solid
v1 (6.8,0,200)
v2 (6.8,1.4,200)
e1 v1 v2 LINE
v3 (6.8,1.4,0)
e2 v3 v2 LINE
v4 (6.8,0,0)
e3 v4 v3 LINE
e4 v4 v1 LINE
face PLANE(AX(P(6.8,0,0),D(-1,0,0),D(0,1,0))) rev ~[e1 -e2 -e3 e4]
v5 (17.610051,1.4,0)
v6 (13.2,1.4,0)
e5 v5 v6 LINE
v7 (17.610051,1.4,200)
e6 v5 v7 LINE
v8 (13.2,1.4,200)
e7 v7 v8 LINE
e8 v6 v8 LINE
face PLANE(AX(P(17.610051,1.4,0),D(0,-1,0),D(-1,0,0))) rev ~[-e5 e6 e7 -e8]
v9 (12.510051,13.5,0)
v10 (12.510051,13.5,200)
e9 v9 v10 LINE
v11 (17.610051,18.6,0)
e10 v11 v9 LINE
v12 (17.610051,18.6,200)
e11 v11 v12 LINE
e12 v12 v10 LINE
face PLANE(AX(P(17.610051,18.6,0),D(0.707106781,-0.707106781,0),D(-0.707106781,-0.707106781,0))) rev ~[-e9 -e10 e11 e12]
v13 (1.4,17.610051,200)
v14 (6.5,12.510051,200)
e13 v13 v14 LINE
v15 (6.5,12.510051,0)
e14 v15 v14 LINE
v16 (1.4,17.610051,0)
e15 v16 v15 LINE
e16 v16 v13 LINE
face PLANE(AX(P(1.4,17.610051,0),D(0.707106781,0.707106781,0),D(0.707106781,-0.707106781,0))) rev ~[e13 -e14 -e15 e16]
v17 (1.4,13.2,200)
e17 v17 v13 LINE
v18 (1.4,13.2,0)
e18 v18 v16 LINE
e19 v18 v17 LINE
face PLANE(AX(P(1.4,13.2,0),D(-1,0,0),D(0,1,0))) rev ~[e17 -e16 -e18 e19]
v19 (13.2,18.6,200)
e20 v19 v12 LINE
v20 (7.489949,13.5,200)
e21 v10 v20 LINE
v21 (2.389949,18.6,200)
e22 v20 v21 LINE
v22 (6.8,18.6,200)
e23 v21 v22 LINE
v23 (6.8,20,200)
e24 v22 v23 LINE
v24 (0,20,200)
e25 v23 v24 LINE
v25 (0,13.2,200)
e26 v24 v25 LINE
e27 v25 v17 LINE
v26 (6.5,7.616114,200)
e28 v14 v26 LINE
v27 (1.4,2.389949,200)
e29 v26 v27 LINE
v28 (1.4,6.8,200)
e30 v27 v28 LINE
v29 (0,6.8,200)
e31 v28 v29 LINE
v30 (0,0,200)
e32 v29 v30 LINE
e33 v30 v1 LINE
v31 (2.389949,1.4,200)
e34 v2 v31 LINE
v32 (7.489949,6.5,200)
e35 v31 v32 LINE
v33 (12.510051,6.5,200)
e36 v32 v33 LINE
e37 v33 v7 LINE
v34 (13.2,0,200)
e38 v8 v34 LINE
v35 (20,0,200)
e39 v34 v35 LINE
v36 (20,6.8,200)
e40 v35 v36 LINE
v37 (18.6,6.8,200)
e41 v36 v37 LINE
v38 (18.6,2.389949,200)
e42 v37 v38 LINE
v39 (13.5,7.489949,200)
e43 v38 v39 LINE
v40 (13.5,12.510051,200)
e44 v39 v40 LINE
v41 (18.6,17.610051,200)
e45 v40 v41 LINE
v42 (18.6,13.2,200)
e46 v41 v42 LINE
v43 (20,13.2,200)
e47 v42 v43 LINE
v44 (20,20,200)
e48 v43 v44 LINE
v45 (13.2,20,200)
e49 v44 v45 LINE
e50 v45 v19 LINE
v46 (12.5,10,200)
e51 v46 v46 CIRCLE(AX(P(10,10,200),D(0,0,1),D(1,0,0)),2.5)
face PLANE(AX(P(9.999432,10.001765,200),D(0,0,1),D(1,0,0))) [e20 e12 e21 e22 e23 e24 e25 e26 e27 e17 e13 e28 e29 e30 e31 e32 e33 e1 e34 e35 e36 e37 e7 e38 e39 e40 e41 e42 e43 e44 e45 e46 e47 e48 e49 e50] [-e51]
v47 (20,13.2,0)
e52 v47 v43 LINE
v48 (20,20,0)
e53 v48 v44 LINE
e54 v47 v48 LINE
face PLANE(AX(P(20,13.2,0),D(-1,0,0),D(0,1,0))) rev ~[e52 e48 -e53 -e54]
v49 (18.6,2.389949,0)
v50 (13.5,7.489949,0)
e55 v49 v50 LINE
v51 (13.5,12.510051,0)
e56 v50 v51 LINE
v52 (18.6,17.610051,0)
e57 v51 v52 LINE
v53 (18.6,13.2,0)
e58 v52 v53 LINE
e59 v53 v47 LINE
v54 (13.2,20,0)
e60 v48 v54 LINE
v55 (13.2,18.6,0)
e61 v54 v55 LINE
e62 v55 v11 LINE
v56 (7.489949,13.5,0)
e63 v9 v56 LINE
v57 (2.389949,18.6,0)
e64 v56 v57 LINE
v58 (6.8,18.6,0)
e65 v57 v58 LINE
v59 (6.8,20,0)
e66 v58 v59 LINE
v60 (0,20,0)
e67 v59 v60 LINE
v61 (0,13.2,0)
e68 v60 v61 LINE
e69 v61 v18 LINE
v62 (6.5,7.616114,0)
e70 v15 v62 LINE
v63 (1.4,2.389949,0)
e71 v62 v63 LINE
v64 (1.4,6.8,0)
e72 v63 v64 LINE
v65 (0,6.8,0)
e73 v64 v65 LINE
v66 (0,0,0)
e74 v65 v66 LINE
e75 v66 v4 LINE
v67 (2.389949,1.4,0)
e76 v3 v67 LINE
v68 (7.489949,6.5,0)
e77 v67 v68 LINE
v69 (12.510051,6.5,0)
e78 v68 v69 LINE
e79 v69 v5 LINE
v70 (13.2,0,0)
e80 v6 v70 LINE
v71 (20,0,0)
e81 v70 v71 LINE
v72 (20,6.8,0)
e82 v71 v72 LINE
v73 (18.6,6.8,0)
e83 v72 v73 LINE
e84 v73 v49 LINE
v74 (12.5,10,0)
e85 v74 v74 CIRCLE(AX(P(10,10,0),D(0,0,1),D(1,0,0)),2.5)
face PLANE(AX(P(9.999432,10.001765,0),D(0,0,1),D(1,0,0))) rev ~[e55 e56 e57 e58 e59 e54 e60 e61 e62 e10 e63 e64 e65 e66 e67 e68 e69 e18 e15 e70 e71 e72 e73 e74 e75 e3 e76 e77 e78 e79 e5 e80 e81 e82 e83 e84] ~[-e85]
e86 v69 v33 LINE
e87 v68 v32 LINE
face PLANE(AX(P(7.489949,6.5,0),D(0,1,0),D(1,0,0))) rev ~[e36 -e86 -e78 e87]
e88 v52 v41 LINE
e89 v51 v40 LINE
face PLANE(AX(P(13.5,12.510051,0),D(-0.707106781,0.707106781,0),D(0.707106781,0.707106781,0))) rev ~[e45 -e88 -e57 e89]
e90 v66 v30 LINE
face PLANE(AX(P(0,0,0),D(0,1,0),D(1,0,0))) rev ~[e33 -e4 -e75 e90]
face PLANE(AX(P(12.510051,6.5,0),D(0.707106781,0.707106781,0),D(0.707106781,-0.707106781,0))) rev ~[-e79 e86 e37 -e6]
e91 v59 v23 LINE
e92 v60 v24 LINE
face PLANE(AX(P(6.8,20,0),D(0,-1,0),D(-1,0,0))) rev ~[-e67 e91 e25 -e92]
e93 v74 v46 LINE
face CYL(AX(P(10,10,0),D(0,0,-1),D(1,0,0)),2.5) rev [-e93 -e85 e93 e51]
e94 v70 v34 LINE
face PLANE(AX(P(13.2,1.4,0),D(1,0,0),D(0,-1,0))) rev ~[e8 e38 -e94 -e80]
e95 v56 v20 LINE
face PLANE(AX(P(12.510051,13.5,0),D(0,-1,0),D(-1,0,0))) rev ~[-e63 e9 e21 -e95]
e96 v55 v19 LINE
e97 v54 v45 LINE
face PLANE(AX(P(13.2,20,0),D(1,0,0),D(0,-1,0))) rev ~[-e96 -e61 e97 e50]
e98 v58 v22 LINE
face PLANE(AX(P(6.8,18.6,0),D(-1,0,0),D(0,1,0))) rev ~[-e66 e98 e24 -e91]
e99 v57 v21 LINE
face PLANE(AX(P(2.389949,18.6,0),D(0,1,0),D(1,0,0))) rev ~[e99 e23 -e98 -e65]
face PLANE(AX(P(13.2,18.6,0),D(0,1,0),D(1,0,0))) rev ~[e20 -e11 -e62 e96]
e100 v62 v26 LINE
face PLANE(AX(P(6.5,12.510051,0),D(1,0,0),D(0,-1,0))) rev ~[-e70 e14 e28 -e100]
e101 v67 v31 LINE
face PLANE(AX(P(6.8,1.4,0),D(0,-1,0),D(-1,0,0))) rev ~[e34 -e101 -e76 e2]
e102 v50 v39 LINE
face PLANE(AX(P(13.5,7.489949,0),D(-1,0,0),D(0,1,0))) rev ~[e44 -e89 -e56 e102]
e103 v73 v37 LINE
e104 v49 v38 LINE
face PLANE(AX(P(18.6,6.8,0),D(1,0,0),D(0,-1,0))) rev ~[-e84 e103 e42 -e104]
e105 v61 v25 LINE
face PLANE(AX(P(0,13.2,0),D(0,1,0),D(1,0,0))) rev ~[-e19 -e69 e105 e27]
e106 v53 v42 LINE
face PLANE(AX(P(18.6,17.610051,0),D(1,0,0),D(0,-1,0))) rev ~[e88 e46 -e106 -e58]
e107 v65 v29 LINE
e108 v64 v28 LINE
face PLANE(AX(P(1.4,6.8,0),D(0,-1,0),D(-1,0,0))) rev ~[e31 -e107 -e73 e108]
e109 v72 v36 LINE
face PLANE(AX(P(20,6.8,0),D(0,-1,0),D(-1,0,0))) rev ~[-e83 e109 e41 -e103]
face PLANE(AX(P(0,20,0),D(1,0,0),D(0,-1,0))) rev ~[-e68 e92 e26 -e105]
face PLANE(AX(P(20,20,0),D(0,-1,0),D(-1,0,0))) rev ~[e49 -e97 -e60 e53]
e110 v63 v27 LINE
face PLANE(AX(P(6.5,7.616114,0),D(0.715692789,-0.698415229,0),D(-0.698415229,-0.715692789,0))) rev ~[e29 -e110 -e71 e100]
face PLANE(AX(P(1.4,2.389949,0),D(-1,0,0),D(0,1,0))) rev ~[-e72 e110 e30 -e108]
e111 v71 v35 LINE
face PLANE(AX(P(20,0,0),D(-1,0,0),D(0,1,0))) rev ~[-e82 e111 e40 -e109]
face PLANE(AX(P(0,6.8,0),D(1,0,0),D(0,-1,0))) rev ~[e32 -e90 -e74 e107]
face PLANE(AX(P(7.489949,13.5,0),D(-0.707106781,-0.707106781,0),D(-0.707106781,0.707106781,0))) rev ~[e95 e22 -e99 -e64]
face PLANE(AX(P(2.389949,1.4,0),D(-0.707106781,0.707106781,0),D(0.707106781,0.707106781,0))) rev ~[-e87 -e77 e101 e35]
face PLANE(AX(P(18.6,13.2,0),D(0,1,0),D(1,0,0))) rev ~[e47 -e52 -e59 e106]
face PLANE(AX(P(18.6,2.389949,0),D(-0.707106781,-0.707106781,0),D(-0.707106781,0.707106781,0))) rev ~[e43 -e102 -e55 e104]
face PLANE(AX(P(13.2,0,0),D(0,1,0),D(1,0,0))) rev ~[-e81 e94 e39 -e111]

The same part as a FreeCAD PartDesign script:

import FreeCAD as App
import Part
import Sketcher
from FreeCAD import Vector
Q = App.Units.Quantity

doc = App.newDocument("Part")
params = doc.addObject("Spreadsheet::Sheet", "Params")
for row, (alias, value) in enumerate([
    ("sketch1_diameter", "5 mm"),
    ("sketch1_width", "1.4 mm"),
    ("sketch1_width2", "6.8 mm"),
    ("pad1_length", "200 mm"),
], start=1):
    params.set(f"A{row}", alias)
    params.set(f"B{row}", "=" + value)
    params.setAlias(f"B{row}", alias)

body = doc.addObject("PartDesign::Body", "Body")

# Sketch on XY plane
sketch1 = doc.addObject("Sketcher::SketchObject", "Sketch")
body.addObject(sketch1)
sketch1.AttachmentSupport = (doc.XY_Plane, [""])
sketch1.MapMode = "FlatFace"
sketch1.addGeometry([
    Part.LineSegment(Vector(6.5, 7.6, 0), Vector(1.4, 2.4, 0)),  # 0
    Part.LineSegment(Vector(1.4, 2.4, 0), Vector(1.4, 6.8, 0)),  # 1
    Part.LineSegment(Vector(1.4, 6.8, 0), Vector(0, 6.8, 0)),  # 2
    Part.LineSegment(Vector(0, 6.8, 0), Vector(0, 0, 0)),  # 3
    Part.LineSegment(Vector(0, 0, 0), Vector(6.8, 0, 0)),  # 4
    Part.LineSegment(Vector(6.8, 0, 0), Vector(6.8, 1.4, 0)),  # 5
    Part.LineSegment(Vector(6.8, 1.4, 0), Vector(2.4, 1.4, 0)),  # 6
    Part.LineSegment(Vector(2.4, 1.4, 0), Vector(7.5, 6.5, 0)),  # 7
    Part.LineSegment(Vector(7.5, 6.5, 0), Vector(12.5, 6.5, 0)),  # 8
    Part.LineSegment(Vector(12.5, 6.5, 0), Vector(17.6, 1.4, 0)),  # 9
    Part.LineSegment(Vector(17.6, 1.4, 0), Vector(13.2, 1.4, 0)),  # 10
    Part.LineSegment(Vector(13.2, 1.4, 0), Vector(13.2, 0, 0)),  # 11
    Part.LineSegment(Vector(13.2, 0, 0), Vector(20, 0, 0)),  # 12
    Part.LineSegment(Vector(20, 0, 0), Vector(20, 6.8, 0)),  # 13
    Part.LineSegment(Vector(20, 6.8, 0), Vector(18.6, 6.8, 0)),  # 14
    Part.LineSegment(Vector(18.6, 6.8, 0), Vector(18.6, 2.4, 0)),  # 15
    Part.LineSegment(Vector(18.6, 2.4, 0), Vector(13.5, 7.5, 0)),  # 16
    Part.LineSegment(Vector(13.5, 7.5, 0), Vector(13.5, 12.5, 0)),  # 17
    Part.LineSegment(Vector(13.5, 12.5, 0), Vector(18.6, 17.6, 0)),  # 18
    Part.LineSegment(Vector(18.6, 17.6, 0), Vector(18.6, 13.2, 0)),  # 19
    Part.LineSegment(Vector(18.6, 13.2, 0), Vector(20, 13.2, 0)),  # 20
    Part.LineSegment(Vector(20, 13.2, 0), Vector(20, 20, 0)),  # 21
    Part.LineSegment(Vector(20, 20, 0), Vector(13.2, 20, 0)),  # 22
    Part.LineSegment(Vector(13.2, 20, 0), Vector(13.2, 18.6, 0)),  # 23
    Part.LineSegment(Vector(13.2, 18.6, 0), Vector(17.6, 18.6, 0)),  # 24
    Part.LineSegment(Vector(17.6, 18.6, 0), Vector(12.5, 13.5, 0)),  # 25
    Part.LineSegment(Vector(12.5, 13.5, 0), Vector(7.5, 13.5, 0)),  # 26
    Part.LineSegment(Vector(7.5, 13.5, 0), Vector(2.4, 18.6, 0)),  # 27
    Part.LineSegment(Vector(2.4, 18.6, 0), Vector(6.8, 18.6, 0)),  # 28
    Part.LineSegment(Vector(6.8, 18.6, 0), Vector(6.8, 20, 0)),  # 29
    Part.LineSegment(Vector(6.8, 20, 0), Vector(0, 20, 0)),  # 30
    Part.LineSegment(Vector(0, 20, 0), Vector(0, 13.2, 0)),  # 31
    Part.LineSegment(Vector(0, 13.2, 0), Vector(1.4, 13.2, 0)),  # 32
    Part.LineSegment(Vector(1.4, 13.2, 0), Vector(1.4, 17.6, 0)),  # 33
    Part.LineSegment(Vector(1.4, 17.6, 0), Vector(6.5, 12.5, 0)),  # 34
    Part.LineSegment(Vector(6.5, 12.5, 0), Vector(6.5, 7.6, 0)),  # 35
    Part.Circle(Vector(10, 10, 0), Vector(0, 0, 1), 2.5),  # 36
], False)
sketch1.addConstraint([
    Sketcher.Constraint("Coincident", 0, 2, 1, 1),
    Sketcher.Constraint("Coincident", 1, 2, 2, 1),
    Sketcher.Constraint("Coincident", 2, 2, 3, 1),
    Sketcher.Constraint("Coincident", 3, 2, 4, 1),
    Sketcher.Constraint("Coincident", 4, 2, 5, 1),
    Sketcher.Constraint("Coincident", 5, 2, 6, 1),
    Sketcher.Constraint("Coincident", 6, 2, 7, 1),
    Sketcher.Constraint("Coincident", 7, 2, 8, 1),
    Sketcher.Constraint("Coincident", 8, 2, 9, 1),
    Sketcher.Constraint("Coincident", 9, 2, 10, 1),
    Sketcher.Constraint("Coincident", 10, 2, 11, 1),
    Sketcher.Constraint("Coincident", 11, 2, 12, 1),
    Sketcher.Constraint("Coincident", 12, 2, 13, 1),
    Sketcher.Constraint("Coincident", 13, 2, 14, 1),
    Sketcher.Constraint("Coincident", 14, 2, 15, 1),
    Sketcher.Constraint("Coincident", 15, 2, 16, 1),
    Sketcher.Constraint("Coincident", 16, 2, 17, 1),
    Sketcher.Constraint("Coincident", 17, 2, 18, 1),
    Sketcher.Constraint("Coincident", 18, 2, 19, 1),
    Sketcher.Constraint("Coincident", 19, 2, 20, 1),
    Sketcher.Constraint("Coincident", 20, 2, 21, 1),
    Sketcher.Constraint("Coincident", 21, 2, 22, 1),
    Sketcher.Constraint("Coincident", 22, 2, 23, 1),
    Sketcher.Constraint("Coincident", 23, 2, 24, 1),
    Sketcher.Constraint("Coincident", 24, 2, 25, 1),
    Sketcher.Constraint("Coincident", 25, 2, 26, 1),
    Sketcher.Constraint("Coincident", 26, 2, 27, 1),
    Sketcher.Constraint("Coincident", 27, 2, 28, 1),
    Sketcher.Constraint("Coincident", 28, 2, 29, 1),
    Sketcher.Constraint("Coincident", 29, 2, 30, 1),
    Sketcher.Constraint("Coincident", 30, 2, 31, 1),
    Sketcher.Constraint("Coincident", 31, 2, 32, 1),
    Sketcher.Constraint("Coincident", 32, 2, 33, 1),
    Sketcher.Constraint("Coincident", 33, 2, 34, 1),
    Sketcher.Constraint("Coincident", 34, 2, 35, 1),
    Sketcher.Constraint("Coincident", 35, 2, 0, 1),
    Sketcher.Constraint("Vertical", 1),
    Sketcher.Constraint("Horizontal", 2),
    Sketcher.Constraint("Vertical", 3),
    Sketcher.Constraint("Horizontal", 4),
    Sketcher.Constraint("Vertical", 5),
    Sketcher.Constraint("Horizontal", 6),
    Sketcher.Constraint("Horizontal", 8),
    Sketcher.Constraint("Horizontal", 10),
    Sketcher.Constraint("Vertical", 11),
    Sketcher.Constraint("Horizontal", 12),
    Sketcher.Constraint("Vertical", 13),
    Sketcher.Constraint("Horizontal", 14),
    Sketcher.Constraint("Vertical", 15),
    Sketcher.Constraint("Vertical", 17),
    Sketcher.Constraint("Vertical", 19),
    Sketcher.Constraint("Horizontal", 20),
    Sketcher.Constraint("Vertical", 21),
    Sketcher.Constraint("Horizontal", 22),
    Sketcher.Constraint("Vertical", 23),
    Sketcher.Constraint("Horizontal", 24),
    Sketcher.Constraint("Horizontal", 26),
    Sketcher.Constraint("Horizontal", 28),
    Sketcher.Constraint("Vertical", 29),
    Sketcher.Constraint("Horizontal", 30),
    Sketcher.Constraint("Vertical", 31),
    Sketcher.Constraint("Horizontal", 32),
    Sketcher.Constraint("Vertical", 33),
    Sketcher.Constraint("Vertical", 35),
    Sketcher.Constraint("Coincident", 3, 2, -1, 1),
    Sketcher.Constraint("PointOnObject", 11, 2, -1),
    Sketcher.Constraint("PointOnObject", 30, 2, -2),
    Sketcher.Constraint("Perpendicular", 7, 9),
    Sketcher.Constraint("Parallel", 9, 16),
    Sketcher.Constraint("Perpendicular", 16, 18),
    Sketcher.Constraint("Parallel", 18, 25),
    Sketcher.Constraint("Perpendicular", 25, 27),
    Sketcher.Constraint("Parallel", 27, 34),
    Sketcher.Constraint("Horizontal", 6, 2, 9, 2),
    Sketcher.Constraint("Horizontal", 2, 2, 13, 2),
    Sketcher.Constraint("Horizontal", 0, 2, 15, 2),
    Sketcher.Constraint("Horizontal", 24, 2, 27, 2),
    Sketcher.Constraint("Horizontal", 22, 2, 29, 2),
    Sketcher.Constraint("Horizontal", 20, 2, 31, 2),
    Sketcher.Constraint("Horizontal", 18, 2, 33, 2),
    Sketcher.Constraint("Horizontal", 17, 2, 34, 2),
    Sketcher.Constraint("Vertical", 15, 2, 18, 2),
    Sketcher.Constraint("Vertical", 13, 2, 20, 2),
    Sketcher.Constraint("Vertical", 11, 2, 22, 2),
    Sketcher.Constraint("Vertical", 9, 2, 24, 2),
    Sketcher.Constraint("Vertical", 8, 2, 25, 2),
    Sketcher.Constraint("Vertical", 7, 2, 26, 2),
    Sketcher.Constraint("Vertical", 6, 2, 27, 2),
    Sketcher.Constraint("Vertical", 5, 2, 28, 2),
    Sketcher.Constraint("Vertical", 1, 2, 32, 2),
    Sketcher.Constraint("Equal", 6, 10),
    Sketcher.Constraint("Equal", 4, 12),
    Sketcher.Constraint("Equal", 2, 14),
    Sketcher.Constraint("Equal", 28, 1),
    Sketcher.Constraint("Equal", 30, 3),
    Sketcher.Constraint("Equal", 32, 5),
    Sketcher.Constraint("Equal", 26, 17),
    Sketcher.Constraint("Equal", 15, 19),
    Sketcher.Constraint("Equal", 13, 21),
    Sketcher.Constraint("Equal", 11, 23),
    Sketcher.Constraint("Equal", 9, 16),
    Sketcher.Constraint("Diameter", 36, 5.0),
    Sketcher.Constraint("DistanceX", 2, 2, 2, 1, 1.4),
    Sketcher.Constraint("DistanceX", 4, 1, 4, 2, 6.8),
    Sketcher.Constraint("DistanceX", -1, 1, 36, 3, 10.0),
    Sketcher.Constraint("DistanceY", -1, 1, 36, 3, 10.0),
    Sketcher.Constraint("DistanceX", -1, 1, 12, 2, 20.0),
    Sketcher.Constraint("Angle", 0, Q("-134.299995 deg")),
    Sketcher.Constraint("DistanceY", 7, 2, 26, 2, 7.0),
    Sketcher.Constraint("DistanceX", 6, 2, 6, 1, 4.410051),
])
sketch1.setExpression("Constraints[101]", "Params.sketch1_diameter")
sketch1.setExpression("Constraints[102]", "Params.sketch1_width")
sketch1.setExpression("Constraints[103]", "Params.sketch1_width2")
pad1 = doc.addObject("PartDesign::Pad", "Pad")
body.addObject(pad1)
pad1.Profile = sketch1
pad1.setExpression("Length", "Params.pad1_length")

doc.recompute()
